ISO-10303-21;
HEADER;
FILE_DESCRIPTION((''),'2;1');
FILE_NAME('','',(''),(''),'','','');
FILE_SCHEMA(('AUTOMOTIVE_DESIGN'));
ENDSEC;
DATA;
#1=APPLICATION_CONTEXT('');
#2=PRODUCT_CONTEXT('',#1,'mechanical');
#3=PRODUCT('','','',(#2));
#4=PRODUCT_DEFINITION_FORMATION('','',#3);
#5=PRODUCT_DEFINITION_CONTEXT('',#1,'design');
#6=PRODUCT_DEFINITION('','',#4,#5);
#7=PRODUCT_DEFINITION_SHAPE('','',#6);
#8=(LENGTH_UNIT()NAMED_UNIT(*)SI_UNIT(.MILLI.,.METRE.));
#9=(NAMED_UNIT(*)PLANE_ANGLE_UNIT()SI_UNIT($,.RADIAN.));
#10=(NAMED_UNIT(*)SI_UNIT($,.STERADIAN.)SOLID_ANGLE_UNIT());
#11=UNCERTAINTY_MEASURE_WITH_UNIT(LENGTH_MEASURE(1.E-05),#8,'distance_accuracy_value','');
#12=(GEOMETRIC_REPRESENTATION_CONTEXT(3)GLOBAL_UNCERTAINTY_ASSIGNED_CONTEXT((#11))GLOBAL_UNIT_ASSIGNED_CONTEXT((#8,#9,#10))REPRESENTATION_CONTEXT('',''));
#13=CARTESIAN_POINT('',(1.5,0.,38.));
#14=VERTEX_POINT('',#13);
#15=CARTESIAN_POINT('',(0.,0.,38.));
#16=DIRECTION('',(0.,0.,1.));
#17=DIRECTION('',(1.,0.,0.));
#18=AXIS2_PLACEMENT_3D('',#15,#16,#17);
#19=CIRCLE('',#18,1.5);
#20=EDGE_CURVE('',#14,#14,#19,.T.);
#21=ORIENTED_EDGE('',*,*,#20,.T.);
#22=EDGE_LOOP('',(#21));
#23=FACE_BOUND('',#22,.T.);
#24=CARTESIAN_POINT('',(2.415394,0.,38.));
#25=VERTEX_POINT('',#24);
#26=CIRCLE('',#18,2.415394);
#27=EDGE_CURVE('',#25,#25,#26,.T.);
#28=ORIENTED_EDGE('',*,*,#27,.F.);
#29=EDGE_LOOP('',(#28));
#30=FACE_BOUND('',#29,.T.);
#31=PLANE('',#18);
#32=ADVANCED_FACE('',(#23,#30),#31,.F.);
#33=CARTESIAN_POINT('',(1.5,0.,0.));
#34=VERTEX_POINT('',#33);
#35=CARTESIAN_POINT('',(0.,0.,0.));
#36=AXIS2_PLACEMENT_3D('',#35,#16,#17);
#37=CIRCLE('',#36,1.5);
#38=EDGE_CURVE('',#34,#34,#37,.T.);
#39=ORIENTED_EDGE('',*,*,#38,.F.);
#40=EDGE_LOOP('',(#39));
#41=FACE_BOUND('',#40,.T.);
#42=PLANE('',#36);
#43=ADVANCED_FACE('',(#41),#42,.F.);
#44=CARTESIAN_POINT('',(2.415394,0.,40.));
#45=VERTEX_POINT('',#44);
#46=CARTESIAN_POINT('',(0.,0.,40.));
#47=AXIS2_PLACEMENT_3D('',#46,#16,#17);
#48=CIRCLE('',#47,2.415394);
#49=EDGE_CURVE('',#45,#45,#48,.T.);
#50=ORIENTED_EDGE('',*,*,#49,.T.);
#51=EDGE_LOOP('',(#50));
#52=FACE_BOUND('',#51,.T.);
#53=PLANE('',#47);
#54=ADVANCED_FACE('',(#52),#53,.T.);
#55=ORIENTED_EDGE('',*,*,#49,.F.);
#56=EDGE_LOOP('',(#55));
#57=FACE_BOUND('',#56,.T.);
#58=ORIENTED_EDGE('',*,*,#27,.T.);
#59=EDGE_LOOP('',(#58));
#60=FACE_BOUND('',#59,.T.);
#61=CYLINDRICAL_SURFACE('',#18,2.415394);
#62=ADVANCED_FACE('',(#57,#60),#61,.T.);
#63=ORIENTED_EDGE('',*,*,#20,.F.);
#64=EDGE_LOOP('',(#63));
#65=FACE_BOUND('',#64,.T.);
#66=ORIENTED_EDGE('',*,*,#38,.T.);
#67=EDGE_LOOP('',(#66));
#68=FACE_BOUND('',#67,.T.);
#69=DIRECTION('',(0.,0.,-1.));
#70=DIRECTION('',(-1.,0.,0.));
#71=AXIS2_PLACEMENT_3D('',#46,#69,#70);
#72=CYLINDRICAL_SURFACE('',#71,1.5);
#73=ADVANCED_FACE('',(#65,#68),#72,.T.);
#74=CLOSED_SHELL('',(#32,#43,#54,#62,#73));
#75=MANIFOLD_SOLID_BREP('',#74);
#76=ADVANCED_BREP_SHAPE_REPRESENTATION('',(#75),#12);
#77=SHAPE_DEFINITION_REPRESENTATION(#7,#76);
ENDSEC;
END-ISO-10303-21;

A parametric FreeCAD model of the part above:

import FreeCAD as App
import Part
import Sketcher
from FreeCAD import Vector

doc = App.newDocument("Part")
body = doc.addObject("PartDesign::Body", "Body")

# Sketch on XY plane
sketch1 = body.newObject("Sketcher::SketchObject", "Sketch")
sketch1.AttachmentSupport = (doc.getObject("XY_Plane"), [""])
sketch1.MapMode = "FlatFace"
sketch1.addGeometry(Part.Circle(Vector(0, 0, 0), Vector(0, 0, 1), 1.5), False)
sketch1.addConstraint([
    Sketcher.Constraint("Coincident", 0, 3, -1, 1),
    Sketcher.Constraint("Diameter", 0, 3.0),
])
pad1 = body.newObject("PartDesign::Pad", "Pad")
pad1.Profile = sketch1
pad1.Length = 40

# Sketch on XY plane
sketch2 = body.newObject("Sketcher::SketchObject", "Sketch001")
sketch2.AttachmentSupport = (doc.getObject("XY_Plane"), [""])
sketch2.MapMode = "FlatFace"
sketch2.AttachmentOffset = App.Placement(Vector(0, 0, 40), App.Rotation())
sketch2.addGeometry([
    Part.Circle(Vector(0, 0, 0), Vector(0, 0, 1), 2.4),
    Part.Circle(Vector(0, 0, 0), Vector(0, 0, 1), 1.5),
], False)
sketch2.addConstraint([
    Sketcher.Constraint("Coincident", 0, 3, -1, 1),
    Sketcher.Constraint("Coincident", 1, 3, -1, 1),
    Sketcher.Constraint("Diameter", 1, 3.0),
    Sketcher.Constraint("Diameter", 0, 4.830789),
])
pad2 = body.newObject("PartDesign::Pad", "Pad001")
pad2.Profile = sketch2
pad2.Length = 2
pad2.Reversed = True

doc.recompute()
